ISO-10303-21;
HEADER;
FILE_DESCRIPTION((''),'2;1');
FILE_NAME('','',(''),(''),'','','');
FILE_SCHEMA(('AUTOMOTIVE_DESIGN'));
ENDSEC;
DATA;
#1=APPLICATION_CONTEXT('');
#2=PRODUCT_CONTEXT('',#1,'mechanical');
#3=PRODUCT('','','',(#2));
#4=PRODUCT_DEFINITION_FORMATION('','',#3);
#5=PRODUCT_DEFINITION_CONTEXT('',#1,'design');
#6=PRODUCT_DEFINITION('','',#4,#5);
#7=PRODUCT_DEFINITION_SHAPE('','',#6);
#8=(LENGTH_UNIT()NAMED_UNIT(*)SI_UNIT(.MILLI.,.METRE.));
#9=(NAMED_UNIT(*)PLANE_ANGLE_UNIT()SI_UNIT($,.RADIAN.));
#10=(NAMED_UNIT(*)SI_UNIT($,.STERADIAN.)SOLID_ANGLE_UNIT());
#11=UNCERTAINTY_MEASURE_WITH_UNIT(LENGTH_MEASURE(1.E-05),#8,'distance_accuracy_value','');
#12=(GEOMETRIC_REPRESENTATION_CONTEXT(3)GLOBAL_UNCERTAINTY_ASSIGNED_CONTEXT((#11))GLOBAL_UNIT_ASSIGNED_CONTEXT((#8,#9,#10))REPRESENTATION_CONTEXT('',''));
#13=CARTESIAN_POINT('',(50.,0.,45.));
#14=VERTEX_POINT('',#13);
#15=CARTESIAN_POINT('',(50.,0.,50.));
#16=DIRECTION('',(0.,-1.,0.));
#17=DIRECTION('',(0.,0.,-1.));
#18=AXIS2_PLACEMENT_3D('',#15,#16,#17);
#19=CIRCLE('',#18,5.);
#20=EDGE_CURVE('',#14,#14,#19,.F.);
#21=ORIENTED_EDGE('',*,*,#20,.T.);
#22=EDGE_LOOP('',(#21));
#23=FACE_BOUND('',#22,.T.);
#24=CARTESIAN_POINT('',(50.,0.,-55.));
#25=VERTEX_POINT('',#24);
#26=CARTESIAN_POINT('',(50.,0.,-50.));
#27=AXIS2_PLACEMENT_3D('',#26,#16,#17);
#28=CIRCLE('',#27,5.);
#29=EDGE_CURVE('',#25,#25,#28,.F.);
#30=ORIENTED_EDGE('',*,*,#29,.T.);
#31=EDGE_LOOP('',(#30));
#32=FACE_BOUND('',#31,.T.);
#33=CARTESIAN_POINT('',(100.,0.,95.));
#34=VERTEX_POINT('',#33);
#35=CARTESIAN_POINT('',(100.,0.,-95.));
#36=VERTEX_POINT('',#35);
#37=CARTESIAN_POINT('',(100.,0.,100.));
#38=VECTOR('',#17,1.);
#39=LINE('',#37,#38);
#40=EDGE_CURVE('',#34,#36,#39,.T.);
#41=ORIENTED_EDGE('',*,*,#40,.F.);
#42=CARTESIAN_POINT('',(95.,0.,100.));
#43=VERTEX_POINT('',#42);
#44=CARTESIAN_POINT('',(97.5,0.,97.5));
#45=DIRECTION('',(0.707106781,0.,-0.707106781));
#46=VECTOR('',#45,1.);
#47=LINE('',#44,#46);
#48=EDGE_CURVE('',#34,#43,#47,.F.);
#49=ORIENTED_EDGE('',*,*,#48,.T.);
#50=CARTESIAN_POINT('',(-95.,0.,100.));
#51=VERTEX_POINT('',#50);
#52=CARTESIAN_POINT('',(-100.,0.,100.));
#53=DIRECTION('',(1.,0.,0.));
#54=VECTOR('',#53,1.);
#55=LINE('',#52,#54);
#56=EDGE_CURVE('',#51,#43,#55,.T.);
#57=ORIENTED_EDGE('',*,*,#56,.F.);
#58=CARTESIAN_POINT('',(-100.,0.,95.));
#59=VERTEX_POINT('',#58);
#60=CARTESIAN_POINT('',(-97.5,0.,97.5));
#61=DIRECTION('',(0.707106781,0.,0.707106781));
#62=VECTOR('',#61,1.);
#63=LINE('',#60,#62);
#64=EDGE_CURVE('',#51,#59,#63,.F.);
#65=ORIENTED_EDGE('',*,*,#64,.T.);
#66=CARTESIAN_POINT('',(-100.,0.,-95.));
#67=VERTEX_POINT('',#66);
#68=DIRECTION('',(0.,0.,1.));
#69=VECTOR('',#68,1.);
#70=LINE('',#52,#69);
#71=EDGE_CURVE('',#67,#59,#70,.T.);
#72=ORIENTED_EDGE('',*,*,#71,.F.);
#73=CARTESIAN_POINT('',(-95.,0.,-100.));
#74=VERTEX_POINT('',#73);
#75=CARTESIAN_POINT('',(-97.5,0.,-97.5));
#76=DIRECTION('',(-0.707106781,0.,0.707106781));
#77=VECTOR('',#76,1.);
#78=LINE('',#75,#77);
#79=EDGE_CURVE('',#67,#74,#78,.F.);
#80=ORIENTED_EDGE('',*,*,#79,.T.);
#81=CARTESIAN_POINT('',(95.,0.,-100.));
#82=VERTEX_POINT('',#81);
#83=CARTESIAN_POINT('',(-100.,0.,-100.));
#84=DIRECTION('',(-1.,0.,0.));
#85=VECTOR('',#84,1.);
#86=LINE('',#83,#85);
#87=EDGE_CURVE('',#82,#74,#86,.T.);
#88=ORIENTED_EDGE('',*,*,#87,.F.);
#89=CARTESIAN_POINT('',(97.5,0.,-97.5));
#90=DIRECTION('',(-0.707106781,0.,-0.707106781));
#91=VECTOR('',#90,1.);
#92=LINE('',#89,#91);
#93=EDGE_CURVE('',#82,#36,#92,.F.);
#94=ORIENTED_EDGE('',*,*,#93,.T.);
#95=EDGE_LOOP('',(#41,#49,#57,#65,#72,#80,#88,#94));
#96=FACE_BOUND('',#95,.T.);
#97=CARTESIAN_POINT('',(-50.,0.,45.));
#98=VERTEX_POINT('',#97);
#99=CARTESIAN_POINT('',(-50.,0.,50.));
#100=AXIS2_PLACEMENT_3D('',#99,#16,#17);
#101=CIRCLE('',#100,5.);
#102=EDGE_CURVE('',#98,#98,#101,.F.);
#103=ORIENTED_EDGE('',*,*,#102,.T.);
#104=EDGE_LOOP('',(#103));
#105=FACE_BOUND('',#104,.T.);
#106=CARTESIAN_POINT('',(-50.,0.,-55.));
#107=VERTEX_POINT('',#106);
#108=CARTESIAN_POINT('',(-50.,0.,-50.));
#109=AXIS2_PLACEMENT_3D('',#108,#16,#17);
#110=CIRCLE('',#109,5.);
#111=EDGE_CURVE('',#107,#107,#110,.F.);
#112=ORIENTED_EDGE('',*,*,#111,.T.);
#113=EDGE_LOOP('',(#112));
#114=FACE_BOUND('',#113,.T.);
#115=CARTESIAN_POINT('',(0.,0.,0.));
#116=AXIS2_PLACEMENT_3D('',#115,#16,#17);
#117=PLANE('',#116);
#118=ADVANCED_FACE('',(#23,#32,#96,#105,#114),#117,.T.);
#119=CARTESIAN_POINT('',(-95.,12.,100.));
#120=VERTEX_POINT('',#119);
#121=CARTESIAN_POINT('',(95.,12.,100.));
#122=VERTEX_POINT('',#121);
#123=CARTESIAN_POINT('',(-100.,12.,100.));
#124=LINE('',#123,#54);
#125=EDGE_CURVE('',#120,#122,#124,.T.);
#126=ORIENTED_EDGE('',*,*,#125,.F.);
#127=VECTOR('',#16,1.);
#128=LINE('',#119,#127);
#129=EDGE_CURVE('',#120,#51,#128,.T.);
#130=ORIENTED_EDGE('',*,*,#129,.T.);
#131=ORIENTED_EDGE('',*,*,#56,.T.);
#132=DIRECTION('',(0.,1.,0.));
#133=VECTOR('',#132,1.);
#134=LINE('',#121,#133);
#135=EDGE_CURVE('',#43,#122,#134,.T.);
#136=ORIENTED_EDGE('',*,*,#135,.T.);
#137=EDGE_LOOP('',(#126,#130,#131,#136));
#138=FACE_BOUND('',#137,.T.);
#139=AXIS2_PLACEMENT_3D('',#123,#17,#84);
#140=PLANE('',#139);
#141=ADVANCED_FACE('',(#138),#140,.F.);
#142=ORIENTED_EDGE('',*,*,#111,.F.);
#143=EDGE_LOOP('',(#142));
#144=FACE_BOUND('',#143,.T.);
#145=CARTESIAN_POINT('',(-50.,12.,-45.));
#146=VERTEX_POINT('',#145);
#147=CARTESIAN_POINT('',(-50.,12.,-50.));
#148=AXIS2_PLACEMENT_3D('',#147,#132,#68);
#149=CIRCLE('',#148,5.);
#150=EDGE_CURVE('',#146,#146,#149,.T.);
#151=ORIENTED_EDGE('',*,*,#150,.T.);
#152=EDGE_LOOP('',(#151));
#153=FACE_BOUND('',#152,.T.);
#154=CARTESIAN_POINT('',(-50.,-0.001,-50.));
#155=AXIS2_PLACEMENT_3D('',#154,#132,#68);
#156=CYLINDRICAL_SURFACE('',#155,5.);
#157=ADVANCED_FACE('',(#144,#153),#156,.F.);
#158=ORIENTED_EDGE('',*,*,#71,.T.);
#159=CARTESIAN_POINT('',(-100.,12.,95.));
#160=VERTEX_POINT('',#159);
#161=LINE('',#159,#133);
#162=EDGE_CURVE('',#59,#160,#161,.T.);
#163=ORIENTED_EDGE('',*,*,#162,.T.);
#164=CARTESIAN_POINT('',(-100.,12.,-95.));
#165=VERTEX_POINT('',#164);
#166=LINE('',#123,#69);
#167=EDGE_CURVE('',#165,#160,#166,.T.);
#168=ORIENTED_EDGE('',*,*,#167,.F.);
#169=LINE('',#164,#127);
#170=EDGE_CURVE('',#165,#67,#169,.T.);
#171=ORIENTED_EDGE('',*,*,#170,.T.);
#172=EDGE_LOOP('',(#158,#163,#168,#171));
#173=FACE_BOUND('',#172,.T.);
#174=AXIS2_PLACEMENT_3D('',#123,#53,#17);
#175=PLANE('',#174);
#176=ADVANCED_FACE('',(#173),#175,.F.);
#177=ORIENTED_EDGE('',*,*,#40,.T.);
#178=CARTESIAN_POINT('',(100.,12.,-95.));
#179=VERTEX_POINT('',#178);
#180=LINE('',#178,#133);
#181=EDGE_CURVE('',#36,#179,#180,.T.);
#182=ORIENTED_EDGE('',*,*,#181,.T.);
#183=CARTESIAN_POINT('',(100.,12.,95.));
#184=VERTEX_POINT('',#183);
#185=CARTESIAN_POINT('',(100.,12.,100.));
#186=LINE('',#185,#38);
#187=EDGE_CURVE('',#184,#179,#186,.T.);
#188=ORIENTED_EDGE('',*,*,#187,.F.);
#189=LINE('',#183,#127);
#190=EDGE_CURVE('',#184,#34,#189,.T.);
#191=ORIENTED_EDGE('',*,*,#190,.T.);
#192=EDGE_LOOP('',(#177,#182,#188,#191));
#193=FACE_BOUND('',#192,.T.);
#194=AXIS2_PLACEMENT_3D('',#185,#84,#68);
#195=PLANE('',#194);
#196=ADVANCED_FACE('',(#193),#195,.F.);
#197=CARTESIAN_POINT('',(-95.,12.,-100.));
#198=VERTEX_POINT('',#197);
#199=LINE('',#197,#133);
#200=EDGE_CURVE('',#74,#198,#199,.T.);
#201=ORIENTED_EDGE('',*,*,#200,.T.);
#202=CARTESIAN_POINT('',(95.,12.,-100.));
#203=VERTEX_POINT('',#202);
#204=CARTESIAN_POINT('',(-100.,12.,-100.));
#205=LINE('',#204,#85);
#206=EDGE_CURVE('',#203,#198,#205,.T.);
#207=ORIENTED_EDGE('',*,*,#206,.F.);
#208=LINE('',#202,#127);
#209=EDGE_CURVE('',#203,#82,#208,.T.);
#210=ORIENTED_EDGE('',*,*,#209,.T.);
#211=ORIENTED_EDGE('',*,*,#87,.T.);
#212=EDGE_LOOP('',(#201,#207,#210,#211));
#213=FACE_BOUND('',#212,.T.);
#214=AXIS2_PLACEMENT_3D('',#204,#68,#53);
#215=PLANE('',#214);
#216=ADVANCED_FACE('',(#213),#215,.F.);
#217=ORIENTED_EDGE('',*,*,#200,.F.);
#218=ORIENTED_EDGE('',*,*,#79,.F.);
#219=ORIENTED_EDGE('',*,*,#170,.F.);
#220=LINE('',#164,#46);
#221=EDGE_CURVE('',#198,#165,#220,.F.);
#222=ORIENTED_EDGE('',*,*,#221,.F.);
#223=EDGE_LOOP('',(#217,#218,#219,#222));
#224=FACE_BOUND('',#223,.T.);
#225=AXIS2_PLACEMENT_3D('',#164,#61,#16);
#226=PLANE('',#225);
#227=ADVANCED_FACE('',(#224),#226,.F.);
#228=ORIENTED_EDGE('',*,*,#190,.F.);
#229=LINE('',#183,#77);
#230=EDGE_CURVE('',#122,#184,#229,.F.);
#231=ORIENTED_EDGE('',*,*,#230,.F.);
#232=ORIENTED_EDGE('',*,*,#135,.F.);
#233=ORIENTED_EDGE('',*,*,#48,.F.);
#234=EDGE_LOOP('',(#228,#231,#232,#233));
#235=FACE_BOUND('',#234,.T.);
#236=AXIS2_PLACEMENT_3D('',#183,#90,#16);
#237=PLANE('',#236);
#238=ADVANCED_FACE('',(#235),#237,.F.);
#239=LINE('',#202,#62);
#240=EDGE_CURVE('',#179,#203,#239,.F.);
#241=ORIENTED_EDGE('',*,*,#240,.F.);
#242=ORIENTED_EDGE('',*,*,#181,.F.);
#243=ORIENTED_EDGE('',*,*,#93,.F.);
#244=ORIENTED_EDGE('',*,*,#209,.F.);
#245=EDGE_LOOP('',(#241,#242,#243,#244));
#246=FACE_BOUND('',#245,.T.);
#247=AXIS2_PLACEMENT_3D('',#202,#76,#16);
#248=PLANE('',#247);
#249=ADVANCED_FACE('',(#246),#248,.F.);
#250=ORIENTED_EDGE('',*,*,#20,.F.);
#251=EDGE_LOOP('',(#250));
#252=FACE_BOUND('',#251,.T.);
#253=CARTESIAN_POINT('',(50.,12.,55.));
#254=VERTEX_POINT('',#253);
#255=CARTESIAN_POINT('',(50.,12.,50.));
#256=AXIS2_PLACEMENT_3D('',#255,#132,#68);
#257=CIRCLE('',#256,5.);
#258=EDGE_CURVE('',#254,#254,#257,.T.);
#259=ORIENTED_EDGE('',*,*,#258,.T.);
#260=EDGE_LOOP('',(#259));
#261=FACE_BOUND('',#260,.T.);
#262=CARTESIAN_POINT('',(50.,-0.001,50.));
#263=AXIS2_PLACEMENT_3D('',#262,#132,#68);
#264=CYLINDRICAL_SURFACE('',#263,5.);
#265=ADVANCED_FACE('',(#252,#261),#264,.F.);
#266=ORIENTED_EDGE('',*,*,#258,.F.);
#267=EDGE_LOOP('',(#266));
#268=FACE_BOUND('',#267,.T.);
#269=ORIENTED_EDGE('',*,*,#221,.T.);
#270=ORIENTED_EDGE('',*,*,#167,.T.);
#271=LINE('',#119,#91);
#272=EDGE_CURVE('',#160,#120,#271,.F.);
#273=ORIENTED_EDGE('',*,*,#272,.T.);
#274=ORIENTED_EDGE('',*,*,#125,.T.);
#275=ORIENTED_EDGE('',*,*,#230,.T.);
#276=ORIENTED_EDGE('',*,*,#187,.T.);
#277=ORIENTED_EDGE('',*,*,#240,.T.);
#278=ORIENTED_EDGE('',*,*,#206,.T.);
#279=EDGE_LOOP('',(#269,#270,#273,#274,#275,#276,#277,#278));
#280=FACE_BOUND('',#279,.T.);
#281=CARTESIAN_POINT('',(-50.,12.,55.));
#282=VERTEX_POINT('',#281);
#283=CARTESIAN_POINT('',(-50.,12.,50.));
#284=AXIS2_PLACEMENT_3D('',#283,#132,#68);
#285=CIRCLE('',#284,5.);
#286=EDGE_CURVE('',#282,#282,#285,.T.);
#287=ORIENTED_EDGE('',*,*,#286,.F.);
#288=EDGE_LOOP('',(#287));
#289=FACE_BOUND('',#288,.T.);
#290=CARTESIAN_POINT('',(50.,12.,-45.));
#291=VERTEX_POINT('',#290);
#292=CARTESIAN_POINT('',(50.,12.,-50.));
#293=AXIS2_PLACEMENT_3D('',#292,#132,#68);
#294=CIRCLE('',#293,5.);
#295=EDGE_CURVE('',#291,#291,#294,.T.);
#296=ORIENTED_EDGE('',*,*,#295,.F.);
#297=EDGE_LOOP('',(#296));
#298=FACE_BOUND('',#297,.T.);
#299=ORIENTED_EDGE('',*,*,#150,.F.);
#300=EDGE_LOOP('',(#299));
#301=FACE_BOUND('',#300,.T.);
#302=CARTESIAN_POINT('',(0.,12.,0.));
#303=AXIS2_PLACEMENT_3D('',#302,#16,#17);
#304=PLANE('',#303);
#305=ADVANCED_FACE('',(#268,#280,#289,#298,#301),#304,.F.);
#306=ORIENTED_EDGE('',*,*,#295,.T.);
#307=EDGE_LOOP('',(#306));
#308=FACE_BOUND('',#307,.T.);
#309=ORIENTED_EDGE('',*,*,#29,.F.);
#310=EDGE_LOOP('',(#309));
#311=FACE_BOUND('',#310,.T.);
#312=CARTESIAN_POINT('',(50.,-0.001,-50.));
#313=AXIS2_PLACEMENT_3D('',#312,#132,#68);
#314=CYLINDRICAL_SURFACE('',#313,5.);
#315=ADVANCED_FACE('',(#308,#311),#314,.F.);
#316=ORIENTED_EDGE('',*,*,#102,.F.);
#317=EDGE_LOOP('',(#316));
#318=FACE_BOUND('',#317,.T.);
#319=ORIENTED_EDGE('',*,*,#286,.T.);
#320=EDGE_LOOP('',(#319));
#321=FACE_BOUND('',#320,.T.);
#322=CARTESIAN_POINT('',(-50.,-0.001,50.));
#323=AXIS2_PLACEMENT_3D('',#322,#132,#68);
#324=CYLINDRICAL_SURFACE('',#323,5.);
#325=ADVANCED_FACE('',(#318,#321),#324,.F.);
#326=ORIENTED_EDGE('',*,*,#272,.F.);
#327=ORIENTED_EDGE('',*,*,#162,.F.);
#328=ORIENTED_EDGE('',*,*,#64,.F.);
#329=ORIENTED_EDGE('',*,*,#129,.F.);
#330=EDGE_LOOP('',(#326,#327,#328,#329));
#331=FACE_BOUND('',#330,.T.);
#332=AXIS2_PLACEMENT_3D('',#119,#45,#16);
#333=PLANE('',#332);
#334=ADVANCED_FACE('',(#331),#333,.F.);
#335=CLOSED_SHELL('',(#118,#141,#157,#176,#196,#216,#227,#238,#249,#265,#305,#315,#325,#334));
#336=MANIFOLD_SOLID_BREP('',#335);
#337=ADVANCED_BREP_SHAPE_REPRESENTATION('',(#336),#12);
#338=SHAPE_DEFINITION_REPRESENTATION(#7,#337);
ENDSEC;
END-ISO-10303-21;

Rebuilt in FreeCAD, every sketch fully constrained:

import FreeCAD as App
import Part
import Sketcher


def edges_at(feature, points):
    """Names of the edges that pass closest to the given points."""
    edges = feature.Shape.Edges
    near = lambda p: min(range(len(edges)), key=lambda i: edges[i].distToShape(Part.Vertex(*p))[0])
    return sorted({f"Edge{near(p) + 1}" for p in points})

doc = App.newDocument("Part")
params = doc.addObject("Spreadsheet::Sheet", "Params")
for row, (alias, value) in enumerate([
    ("sketch1_width", "200 mm"),
    ("pad1_length", "12 mm"),
    ("sketch2_diameter", "10 mm"),
    ("sketch3_diameter", "10 mm"),
    ("sketch4_diameter", "10 mm"),
    ("sketch5_diameter", "10 mm"),
    ("chamfer_size", "5 mm"),
], start=1):
    params.set(f"A{row}", alias)
    params.set(f"B{row}", "=" + value)
    params.setAlias(f"B{row}", alias)

body = doc.addObject("PartDesign::Body", "Body")

# Sketch on XZ plane
sketch1 = doc.addObject("Sketcher::SketchObject", "Sketch")
body.addObject(sketch1)
sketch1.AttachmentSupport = (doc.XZ_Plane, [""])
sketch1.MapMode = "FlatFace"
sketch1.addGeometry([
    Part.LineSegment(App.Vector(-100, -100, 0), App.Vector(-100, 100, 0)),
    Part.LineSegment(App.Vector(-100, 100, 0), App.Vector(100, 100, 0)),
    Part.LineSegment(App.Vector(100, 100, 0), App.Vector(100, -100, 0)),
    Part.LineSegment(App.Vector(100, -100, 0), App.Vector(-100, -100, 0)),
], False)
sketch1.addConstraint([
    Sketcher.Constraint("Coincident", 0, 2, 1, 1),
    Sketcher.Constraint("Coincident", 1, 2, 2, 1),
    Sketcher.Constraint("Coincident", 2, 2, 3, 1),
    Sketcher.Constraint("Coincident", 3, 2, 0, 1),
    Sketcher.Constraint("Vertical", 0),
    Sketcher.Constraint("Horizontal", 1),
    Sketcher.Constraint("Vertical", 2),
    Sketcher.Constraint("Horizontal", 3),
    Sketcher.Constraint("Symmetric", 0, 2, 2, 2, -1, 1),
    Sketcher.Constraint("Equal", 3, 0),
    Sketcher.Constraint("DistanceX", 1, 1, 1, 2, 200.0),
])
sketch1.setExpression("Constraints[10]", "Params.sketch1_width")
pad1 = doc.addObject("PartDesign::Pad", "Pad")
body.addObject(pad1)
pad1.Profile = sketch1
pad1.setExpression("Length", "Params.pad1_length")
pad1.Reversed = True

# Sketch on XZ plane
sketch2 = doc.addObject("Sketcher::SketchObject", "Sketch001")
body.addObject(sketch2)
sketch2.AttachmentSupport = (doc.XZ_Plane, [""])
sketch2.MapMode = "FlatFace"
sketch2.AttachmentOffset = App.Placement(App.Vector(0, 0, -12), App.Rotation())
sketch2.addGeometry(Part.Circle(App.Vector(-50, -50, 0), App.Vector(0, 0, 1), 5), False)
sketch2.addConstraint([
    Sketcher.Constraint("Diameter", 0, 10.0),
    Sketcher.Constraint("DistanceX", 0, 3, -1, 1, 50.0),
    Sketcher.Constraint("DistanceY", 0, 3, -1, 1, 50.0),
])
sketch2.setExpression("Constraints[0]", "Params.sketch2_diameter")
pocket1 = doc.addObject("PartDesign::Pocket", "Pocket")
body.addObject(pocket1)
pocket1.Profile = sketch2
pocket1.Type = "UpToFirst"
pocket1.Reversed = True

# Sketch on XZ plane
sketch3 = doc.addObject("Sketcher::SketchObject", "Sketch002")
body.addObject(sketch3)
sketch3.AttachmentSupport = (doc.XZ_Plane, [""])
sketch3.MapMode = "FlatFace"
sketch3.AttachmentOffset = App.Placement(App.Vector(0, 0, -12), App.Rotation())
sketch3.addGeometry(Part.Circle(App.Vector(50, -50, 0), App.Vector(0, 0, 1), 5), False)
sketch3.addConstraint([
    Sketcher.Constraint("Diameter", 0, 10.0),
    Sketcher.Constraint("DistanceX", -1, 1, 0, 3, 50.0),
    Sketcher.Constraint("DistanceY", 0, 3, -1, 1, 50.0),
])
sketch3.setExpression("Constraints[0]", "Params.sketch3_diameter")
pocket2 = doc.addObject("PartDesign::Pocket", "Pocket001")
body.addObject(pocket2)
pocket2.Profile = sketch3
pocket2.Type = "UpToFirst"
pocket2.Reversed = True

# Sketch on XZ plane
sketch4 = doc.addObject("Sketcher::SketchObject", "Sketch003")
body.addObject(sketch4)
sketch4.AttachmentSupport = (doc.XZ_Plane, [""])
sketch4.MapMode = "FlatFace"
sketch4.AttachmentOffset = App.Placement(App.Vector(0, 0, -12), App.Rotation())
sketch4.addGeometry(Part.Circle(App.Vector(-50, 50, 0), App.Vector(0, 0, 1), 5), False)
sketch4.addConstraint([
    Sketcher.Constraint("Diameter", 0, 10.0),
    Sketcher.Constraint("DistanceX", 0, 3, -1, 1, 50.0),
    Sketcher.Constraint("DistanceY", -1, 1, 0, 3, 50.0),
])
sketch4.setExpression("Constraints[0]", "Params.sketch4_diameter")
pocket3 = doc.addObject("PartDesign::Pocket", "Pocket002")
body.addObject(pocket3)
pocket3.Profile = sketch4
pocket3.Type = "UpToFirst"
pocket3.Reversed = True

# Sketch on XZ plane
sketch5 = doc.addObject("Sketcher::SketchObject", "Sketch004")
body.addObject(sketch5)
sketch5.AttachmentSupport = (doc.XZ_Plane, [""])
sketch5.MapMode = "FlatFace"
sketch5.AttachmentOffset = App.Placement(App.Vector(0, 0, -12), App.Rotation())
sketch5.addGeometry(Part.Circle(App.Vector(50, 50, 0), App.Vector(0, 0, 1), 5), False)
sketch5.addConstraint([
    Sketcher.Constraint("Diameter", 0, 10.0),
    Sketcher.Constraint("DistanceX", -1, 1, 0, 3, 50.0),
    Sketcher.Constraint("DistanceY", -1, 1, 0, 3, 50.0),
])
sketch5.setExpression("Constraints[0]", "Params.sketch5_diameter")
pocket4 = doc.addObject("PartDesign::Pocket", "Pocket003")
body.addObject(pocket4)
pocket4.Profile = sketch5
pocket4.Type = "UpToFirst"
pocket4.Reversed = True
doc.recompute()

chamfer = doc.addObject("PartDesign::Chamfer", "Chamfer")
body.addObject(chamfer)
chamfer.Base = (pocket4, edges_at(pocket4, [
    (-100, 6, -100),
    (100, 6, -100),
    (100, 6, 100),
    (-100, 6, 100),
]))
chamfer.setExpression("Size", "Params.chamfer_size")

doc.recompute()
